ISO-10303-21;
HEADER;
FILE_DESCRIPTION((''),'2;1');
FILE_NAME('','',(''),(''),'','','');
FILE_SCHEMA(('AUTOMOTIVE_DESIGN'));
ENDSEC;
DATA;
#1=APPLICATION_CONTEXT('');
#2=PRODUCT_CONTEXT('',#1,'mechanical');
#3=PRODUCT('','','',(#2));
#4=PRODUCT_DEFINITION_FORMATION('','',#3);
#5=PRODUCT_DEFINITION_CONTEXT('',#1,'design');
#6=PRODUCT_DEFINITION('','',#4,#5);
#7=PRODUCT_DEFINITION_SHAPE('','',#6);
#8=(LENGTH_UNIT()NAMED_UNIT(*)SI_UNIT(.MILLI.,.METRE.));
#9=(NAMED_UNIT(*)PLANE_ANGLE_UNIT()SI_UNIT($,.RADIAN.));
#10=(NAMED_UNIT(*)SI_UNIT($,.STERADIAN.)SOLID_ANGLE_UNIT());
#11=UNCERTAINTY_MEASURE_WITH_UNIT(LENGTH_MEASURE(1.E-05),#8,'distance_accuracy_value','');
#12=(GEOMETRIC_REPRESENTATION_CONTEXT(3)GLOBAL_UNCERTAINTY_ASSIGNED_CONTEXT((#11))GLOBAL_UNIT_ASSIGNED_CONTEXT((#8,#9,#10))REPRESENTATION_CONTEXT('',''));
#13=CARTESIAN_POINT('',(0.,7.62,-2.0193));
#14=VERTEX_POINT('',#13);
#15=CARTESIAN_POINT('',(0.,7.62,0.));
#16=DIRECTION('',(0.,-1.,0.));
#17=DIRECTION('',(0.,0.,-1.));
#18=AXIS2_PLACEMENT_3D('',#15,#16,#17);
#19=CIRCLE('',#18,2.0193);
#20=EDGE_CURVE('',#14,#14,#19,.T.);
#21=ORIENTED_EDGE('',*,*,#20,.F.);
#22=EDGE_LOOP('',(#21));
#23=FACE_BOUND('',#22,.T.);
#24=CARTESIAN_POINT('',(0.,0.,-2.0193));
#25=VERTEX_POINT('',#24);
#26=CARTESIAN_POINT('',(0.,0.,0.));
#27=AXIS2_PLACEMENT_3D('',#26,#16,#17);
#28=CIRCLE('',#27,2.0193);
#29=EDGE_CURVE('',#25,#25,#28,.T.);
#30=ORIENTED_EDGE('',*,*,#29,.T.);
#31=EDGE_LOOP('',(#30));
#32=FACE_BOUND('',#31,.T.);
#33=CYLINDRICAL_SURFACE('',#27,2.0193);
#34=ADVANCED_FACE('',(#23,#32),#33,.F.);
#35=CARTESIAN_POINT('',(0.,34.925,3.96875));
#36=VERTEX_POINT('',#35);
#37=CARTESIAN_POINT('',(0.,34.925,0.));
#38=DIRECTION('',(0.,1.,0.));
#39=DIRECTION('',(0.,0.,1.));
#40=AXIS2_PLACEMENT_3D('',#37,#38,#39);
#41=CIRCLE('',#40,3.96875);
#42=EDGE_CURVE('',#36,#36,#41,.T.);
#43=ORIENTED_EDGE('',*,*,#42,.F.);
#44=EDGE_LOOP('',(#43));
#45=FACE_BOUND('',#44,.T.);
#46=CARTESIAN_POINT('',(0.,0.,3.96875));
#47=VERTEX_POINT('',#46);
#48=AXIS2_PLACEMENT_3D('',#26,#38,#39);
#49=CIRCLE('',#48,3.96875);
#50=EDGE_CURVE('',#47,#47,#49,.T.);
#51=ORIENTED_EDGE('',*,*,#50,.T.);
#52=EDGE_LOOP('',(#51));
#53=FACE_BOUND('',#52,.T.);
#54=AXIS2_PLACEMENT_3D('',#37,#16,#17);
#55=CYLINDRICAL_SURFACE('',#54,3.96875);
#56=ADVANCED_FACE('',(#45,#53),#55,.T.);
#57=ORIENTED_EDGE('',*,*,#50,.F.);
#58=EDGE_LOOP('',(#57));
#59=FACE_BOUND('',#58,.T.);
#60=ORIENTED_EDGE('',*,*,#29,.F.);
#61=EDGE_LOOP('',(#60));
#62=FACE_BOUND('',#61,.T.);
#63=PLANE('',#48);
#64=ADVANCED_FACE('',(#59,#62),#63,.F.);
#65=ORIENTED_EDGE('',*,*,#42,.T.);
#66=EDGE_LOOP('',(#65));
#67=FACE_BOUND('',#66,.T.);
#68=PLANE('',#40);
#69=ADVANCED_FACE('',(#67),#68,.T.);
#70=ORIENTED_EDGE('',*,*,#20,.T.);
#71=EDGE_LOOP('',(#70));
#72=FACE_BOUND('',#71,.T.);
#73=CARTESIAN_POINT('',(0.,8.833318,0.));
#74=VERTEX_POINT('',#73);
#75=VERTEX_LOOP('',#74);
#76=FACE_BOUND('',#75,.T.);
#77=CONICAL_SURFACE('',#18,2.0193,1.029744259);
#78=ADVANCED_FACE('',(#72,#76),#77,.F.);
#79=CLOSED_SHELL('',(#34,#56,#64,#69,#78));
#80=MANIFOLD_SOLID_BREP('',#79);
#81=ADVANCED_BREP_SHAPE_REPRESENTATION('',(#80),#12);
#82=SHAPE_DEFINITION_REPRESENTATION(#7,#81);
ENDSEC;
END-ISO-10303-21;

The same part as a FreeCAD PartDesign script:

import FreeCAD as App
import Part
import Sketcher

V = App.Vector
Q = App.Units.Quantity

doc = App.newDocument("Part")
body = doc.addObject("PartDesign::Body", "Body")

sketch1 = body.newObject("Sketcher::SketchObject", "Sketch")
sketch1.AttachmentSupport = (doc.getObject("XZ_Plane"), [""])
sketch1.MapMode = "FlatFace"
sketch1.addGeometry(Part.Circle(V(0, 0, 0), V(0, 0, 1), 4), False)
sketch1.addConstraint([
    Sketcher.Constraint("Coincident", 0, 3, -1, 1),
    Sketcher.Constraint("Diameter", 0, Q("0.3125 in")),
])
pad1 = body.newObject("PartDesign::Pad", "Pad")
pad1.Profile = sketch1
pad1.Length = Q("1.375 in")
pad1.Reversed = True

sketch2 = body.newObject("Sketcher::SketchObject", "Sketch001")
sketch2.AttachmentSupport = (doc.getObject("XZ_Plane"), [""])
sketch2.MapMode = "FlatFace"
sketch2.addGeometry(Part.Circle(V(0, 0, 0), V(0, 0, 1), 2), False)
sketch2.addConstraint([
    Sketcher.Constraint("Coincident", 0, 3, -1, 1),
    Sketcher.Constraint("Diameter", 0, Q("0.159 in")),
])
doc.recompute()
hole = body.newObject("PartDesign::Hole", "Hole")
hole.Profile = sketch2
hole.ThreadType = "None"
hole.Diameter = Q("0.159 in")
hole.DepthType = "Dimension"
hole.Depth = Q("0.3 in")
hole.DrillPoint = "Angled"
hole.DrillPointAngle = 118

doc.recompute()
